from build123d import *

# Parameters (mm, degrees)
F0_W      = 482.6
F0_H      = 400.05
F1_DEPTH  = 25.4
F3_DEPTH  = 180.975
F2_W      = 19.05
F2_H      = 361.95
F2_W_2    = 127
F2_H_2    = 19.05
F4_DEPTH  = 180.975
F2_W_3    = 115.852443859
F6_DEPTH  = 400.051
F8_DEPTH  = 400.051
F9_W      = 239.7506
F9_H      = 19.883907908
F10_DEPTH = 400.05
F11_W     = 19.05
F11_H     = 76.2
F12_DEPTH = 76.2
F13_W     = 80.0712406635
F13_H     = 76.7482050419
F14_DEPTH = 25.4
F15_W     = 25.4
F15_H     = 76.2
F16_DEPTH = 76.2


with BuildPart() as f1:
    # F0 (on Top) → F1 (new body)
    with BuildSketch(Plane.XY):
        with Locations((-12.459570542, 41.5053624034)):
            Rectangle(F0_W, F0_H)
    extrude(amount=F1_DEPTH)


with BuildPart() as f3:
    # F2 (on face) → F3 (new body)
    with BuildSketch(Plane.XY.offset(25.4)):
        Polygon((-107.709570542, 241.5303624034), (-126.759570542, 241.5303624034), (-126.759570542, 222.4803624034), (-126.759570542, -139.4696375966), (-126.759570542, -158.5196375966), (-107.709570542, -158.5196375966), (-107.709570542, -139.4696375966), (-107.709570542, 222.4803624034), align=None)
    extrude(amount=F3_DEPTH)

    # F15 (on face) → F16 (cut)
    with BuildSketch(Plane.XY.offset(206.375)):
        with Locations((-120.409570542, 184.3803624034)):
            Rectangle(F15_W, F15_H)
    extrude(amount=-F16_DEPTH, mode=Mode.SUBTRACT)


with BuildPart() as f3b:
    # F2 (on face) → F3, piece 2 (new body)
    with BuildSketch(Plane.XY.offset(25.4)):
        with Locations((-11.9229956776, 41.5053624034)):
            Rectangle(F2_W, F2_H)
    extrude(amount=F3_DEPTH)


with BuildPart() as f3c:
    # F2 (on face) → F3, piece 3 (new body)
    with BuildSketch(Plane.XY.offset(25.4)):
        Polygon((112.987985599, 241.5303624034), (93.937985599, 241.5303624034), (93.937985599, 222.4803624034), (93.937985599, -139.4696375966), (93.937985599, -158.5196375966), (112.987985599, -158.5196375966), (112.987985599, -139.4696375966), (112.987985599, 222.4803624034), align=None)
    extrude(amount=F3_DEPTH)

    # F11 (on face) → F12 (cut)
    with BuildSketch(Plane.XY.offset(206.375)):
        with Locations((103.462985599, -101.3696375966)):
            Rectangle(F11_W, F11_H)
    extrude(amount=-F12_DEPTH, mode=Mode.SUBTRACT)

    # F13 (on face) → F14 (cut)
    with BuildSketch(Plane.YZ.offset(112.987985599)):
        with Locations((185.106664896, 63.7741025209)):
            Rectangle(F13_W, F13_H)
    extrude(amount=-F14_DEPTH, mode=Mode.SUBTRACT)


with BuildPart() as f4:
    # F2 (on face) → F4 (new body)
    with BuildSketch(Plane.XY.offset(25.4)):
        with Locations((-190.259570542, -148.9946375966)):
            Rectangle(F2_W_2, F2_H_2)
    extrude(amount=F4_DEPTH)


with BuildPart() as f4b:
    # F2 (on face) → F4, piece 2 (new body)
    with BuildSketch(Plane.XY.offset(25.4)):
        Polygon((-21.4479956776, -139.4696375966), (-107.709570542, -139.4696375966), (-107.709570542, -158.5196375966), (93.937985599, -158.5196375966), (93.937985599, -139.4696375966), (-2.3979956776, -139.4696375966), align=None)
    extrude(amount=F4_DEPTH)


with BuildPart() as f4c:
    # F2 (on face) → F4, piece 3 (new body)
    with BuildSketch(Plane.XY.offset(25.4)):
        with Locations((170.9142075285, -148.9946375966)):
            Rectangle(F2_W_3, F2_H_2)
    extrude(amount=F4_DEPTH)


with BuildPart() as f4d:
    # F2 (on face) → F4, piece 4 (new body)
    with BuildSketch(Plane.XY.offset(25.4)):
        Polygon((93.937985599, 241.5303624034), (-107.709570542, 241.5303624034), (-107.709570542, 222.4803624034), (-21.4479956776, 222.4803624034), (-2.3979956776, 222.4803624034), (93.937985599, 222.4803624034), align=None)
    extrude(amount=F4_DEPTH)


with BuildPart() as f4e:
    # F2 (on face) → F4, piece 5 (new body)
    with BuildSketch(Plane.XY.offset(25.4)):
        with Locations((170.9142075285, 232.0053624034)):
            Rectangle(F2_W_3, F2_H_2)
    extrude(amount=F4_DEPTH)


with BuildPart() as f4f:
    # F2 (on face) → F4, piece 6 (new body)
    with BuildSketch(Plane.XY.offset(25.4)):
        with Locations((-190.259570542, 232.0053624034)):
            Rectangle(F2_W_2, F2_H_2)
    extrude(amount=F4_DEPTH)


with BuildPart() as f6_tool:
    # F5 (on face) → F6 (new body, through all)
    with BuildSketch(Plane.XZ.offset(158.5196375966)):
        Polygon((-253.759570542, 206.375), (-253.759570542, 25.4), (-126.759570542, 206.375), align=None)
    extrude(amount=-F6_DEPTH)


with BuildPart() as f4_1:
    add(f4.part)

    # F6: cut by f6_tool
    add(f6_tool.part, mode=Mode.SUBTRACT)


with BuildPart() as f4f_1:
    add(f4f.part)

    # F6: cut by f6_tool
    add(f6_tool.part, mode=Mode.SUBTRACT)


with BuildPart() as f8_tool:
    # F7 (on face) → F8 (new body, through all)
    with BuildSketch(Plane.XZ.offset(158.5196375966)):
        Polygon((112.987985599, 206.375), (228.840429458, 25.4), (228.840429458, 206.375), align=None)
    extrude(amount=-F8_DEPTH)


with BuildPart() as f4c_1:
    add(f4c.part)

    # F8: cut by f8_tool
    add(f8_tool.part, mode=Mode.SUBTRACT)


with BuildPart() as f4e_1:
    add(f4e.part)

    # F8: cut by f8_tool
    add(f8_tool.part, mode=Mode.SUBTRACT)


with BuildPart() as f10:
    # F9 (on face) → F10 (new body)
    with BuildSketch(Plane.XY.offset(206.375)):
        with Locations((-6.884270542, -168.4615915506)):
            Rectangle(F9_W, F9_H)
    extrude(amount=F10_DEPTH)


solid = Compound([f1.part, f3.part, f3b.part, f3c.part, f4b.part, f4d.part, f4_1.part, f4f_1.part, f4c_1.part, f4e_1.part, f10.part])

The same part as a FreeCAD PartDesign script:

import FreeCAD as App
import Part
import Sketcher
from FreeCAD import Vector
Q = App.Units.Quantity

doc = App.newDocument("Part")
body = doc.addObject("PartDesign::Body", "Body")

sketch1 = body.newObject("Sketcher::SketchObject", "Sketch")
sketch1.AttachmentSupport = (doc.getObject("XY_Plane"), [""])
sketch1.MapMode = "FlatFace"
sketch1.addGeometry([
    Part.LineSegment(Vector(-253.759571, 241.530362, 0), Vector(-253.759571, -158.519638, 0)),
    Part.LineSegment(Vector(-253.759571, -158.519638, 0), Vector(228.840429, -158.519638, 0)),
    Part.LineSegment(Vector(228.840429, -158.519638, 0), Vector(228.840429, 241.530362, 0)),
    Part.LineSegment(Vector(228.840429, 241.530362, 0), Vector(-253.759571, 241.530362, 0)),
], False)
sketch1.addConstraint([
    Sketcher.Constraint("Coincident", 0, 2, 1, 1),
    Sketcher.Constraint("Coincident", 1, 2, 2, 1),
    Sketcher.Constraint("Coincident", 2, 2, 3, 1),
    Sketcher.Constraint("Coincident", 3, 2, 0, 1),
    Sketcher.Constraint("Vertical", 0),
    Sketcher.Constraint("Horizontal", 1),
    Sketcher.Constraint("Vertical", 2),
    Sketcher.Constraint("Horizontal", 3),
    Sketcher.Constraint("DistanceX", 1, 1, 1, 2, Q("19 in")),
    Sketcher.Constraint("DistanceY", 0, 2, 0, 1, Q("15.75 in")),
    Sketcher.Constraint("DistanceX", 0, 2, -1, 1, Q("253.759571 mm")),
    Sketcher.Constraint("DistanceY", 0, 2, -1, 1, Q("158.519638 mm")),
])
pad1 = body.newObject("PartDesign::Pad", "Pad")
pad1.Profile = sketch1
pad1.Length = Q("1 in")
body2 = doc.addObject("PartDesign::Body", "Body001")

sketch2 = body2.newObject("Sketcher::SketchObject", "Sketch001")
sketch2.AttachmentSupport = (doc.getObject("XY_Plane001"), [""])
sketch2.MapMode = "FlatFace"
sketch2.AttachmentOffset = App.Placement(Vector(0, 0, 1 * 25.4), App.Rotation())
sketch2.addGeometry([
    Part.LineSegment(Vector(-107.709571, 241.530362, 0), Vector(-126.759571, 241.530362, 0)),
    Part.LineSegment(Vector(-126.759571, 241.530362, 0), Vector(-126.759571, -158.519638, 0)),
    Part.LineSegment(Vector(-126.759571, -158.519638, 0), Vector(-107.709571, -158.519638, 0)),
    Part.LineSegment(Vector(-107.709571, -158.519638, 0), Vector(-107.709571, 241.530362, 0)),
], False)
sketch2.addConstraint([
    Sketcher.Constraint("Coincident", 0, 2, 1, 1),
    Sketcher.Constraint("Coincident", 1, 2, 2, 1),
    Sketcher.Constraint("Coincident", 2, 2, 3, 1),
    Sketcher.Constraint("Coincident", 3, 2, 0, 1),
    Sketcher.Constraint("Horizontal", 0),
    Sketcher.Constraint("Vertical", 1),
    Sketcher.Constraint("Horizontal", 2),
    Sketcher.Constraint("Vertical", 3),
    Sketcher.Constraint("DistanceX", 0, 2, 0, 1, Q("0.75 in")),
    Sketcher.Constraint("DistanceY", 1, 2, 1, 1, Q("15.75 in")),
    Sketcher.Constraint("DistanceX", 0, 2, -1, 1, Q("126.759571 mm")),
    Sketcher.Constraint("DistanceY", -1, 1, 0, 2, Q("241.530362 mm")),
])
pad2 = body2.newObject("PartDesign::Pad", "Pad001")
pad2.Profile = sketch2
pad2.Length = Q("7.125 in")

sketch3 = body2.newObject("Sketcher::SketchObject", "Sketch002")
sketch3.AttachmentSupport = (doc.getObject("XY_Plane001"), [""])
sketch3.MapMode = "FlatFace"
sketch3.AttachmentOffset = App.Placement(Vector(0, 0, 8.125 * 25.4), App.Rotation())
sketch3.addGeometry([
    Part.LineSegment(Vector(-133.109571, 222.480362, 0), Vector(-133.109571, 146.280362, 0)),
    Part.LineSegment(Vector(-133.109571, 146.280362, 0), Vector(-107.709571, 146.280362, 0)),
    Part.LineSegment(Vector(-107.709571, 146.280362, 0), Vector(-107.709571, 222.480362, 0)),
    Part.LineSegment(Vector(-107.709571, 222.480362, 0), Vector(-133.109571, 222.480362, 0)),
], False)
sketch3.addConstraint([
    Sketcher.Constraint("Coincident", 0, 2, 1, 1),
    Sketcher.Constraint("Coincident", 1, 2, 2, 1),
    Sketcher.Constraint("Coincident", 2, 2, 3, 1),
    Sketcher.Constraint("Coincident", 3, 2, 0, 1),
    Sketcher.Constraint("Vertical", 0),
    Sketcher.Constraint("Horizontal", 1),
    Sketcher.Constraint("Vertical", 2),
    Sketcher.Constraint("Horizontal", 3),
    Sketcher.Constraint("DistanceX", 1, 1, 1, 2, Q("1 in")),
    Sketcher.Constraint("DistanceY", 0, 2, 0, 1, Q("3 in")),
    Sketcher.Constraint("DistanceX", 0, 2, -1, 1, Q("133.109571 mm")),
    Sketcher.Constraint("DistanceY", -1, 1, 0, 2, Q("146.280362 mm")),
])
pocket1 = body2.newObject("PartDesign::Pocket", "Pocket")
pocket1.Profile = sketch3
pocket1.Length = Q("3 in")
body3 = doc.addObject("PartDesign::Body", "Body002")

sketch4 = body3.newObject("Sketcher::SketchObject", "Sketch003")
sketch4.AttachmentSupport = (doc.getObject("XY_Plane002"), [""])
sketch4.MapMode = "FlatFace"
sketch4.AttachmentOffset = App.Placement(Vector(0, 0, 1 * 25.4), App.Rotation())
sketch4.addGeometry([
    Part.LineSegment(Vector(-21.447996, 222.480362, 0), Vector(-21.447996, -139.469638, 0)),
    Part.LineSegment(Vector(-21.447996, -139.469638, 0), Vector(-2.397996, -139.469638, 0)),
    Part.LineSegment(Vector(-2.397996, -139.469638, 0), Vector(-2.397996, 222.480362, 0)),
    Part.LineSegment(Vector(-2.397996, 222.480362, 0), Vector(-21.447996, 222.480362, 0)),
], False)
sketch4.addConstraint([
    Sketcher.Constraint("Coincident", 0, 2, 1, 1),
    Sketcher.Constraint("Coincident", 1, 2, 2, 1),
    Sketcher.Constraint("Coincident", 2, 2, 3, 1),
    Sketcher.Constraint("Coincident", 3, 2, 0, 1),
    Sketcher.Constraint("Vertical", 0),
    Sketcher.Constraint("Horizontal", 1),
    Sketcher.Constraint("Vertical", 2),
    Sketcher.Constraint("Horizontal", 3),
    Sketcher.Constraint("DistanceX", 1, 1, 1, 2, Q("0.75 in")),
    Sketcher.Constraint("DistanceY", 0, 2, 0, 1, Q("14.25 in")),
    Sketcher.Constraint("DistanceX", 0, 2, -1, 1, Q("21.447996 mm")),
    Sketcher.Constraint("DistanceY", 0, 2, -1, 1, Q("139.469638 mm")),
])
pad3 = body3.newObject("PartDesign::Pad", "Pad002")
pad3.Profile = sketch4
pad3.Length = Q("7.125 in")
body4 = doc.addObject("PartDesign::Body", "Body003")

sketch5 = body4.newObject("Sketcher::SketchObject", "Sketch004")
sketch5.AttachmentSupport = (doc.getObject("XY_Plane003"), [""])
sketch5.MapMode = "FlatFace"
sketch5.AttachmentOffset = App.Placement(Vector(0, 0, 1 * 25.4), App.Rotation())
sketch5.addGeometry([
    Part.LineSegment(Vector(112.987986, 241.530362, 0), Vector(93.937986, 241.530362, 0)),
    Part.LineSegment(Vector(93.937986, 241.530362, 0), Vector(93.937986, -158.519638, 0)),
    Part.LineSegment(Vector(93.937986, -158.519638, 0), Vector(112.987986, -158.519638, 0)),
    Part.LineSegment(Vector(112.987986, -158.519638, 0), Vector(112.987986, 241.530362, 0)),
], False)
sketch5.addConstraint([
    Sketcher.Constraint("Coincident", 0, 2, 1, 1),
    Sketcher.Constraint("Coincident", 1, 2, 2, 1),
    Sketcher.Constraint("Coincident", 2, 2, 3, 1),
    Sketcher.Constraint("Coincident", 3, 2, 0, 1),
    Sketcher.Constraint("Horizontal", 0),
    Sketcher.Constraint("Vertical", 1),
    Sketcher.Constraint("Horizontal", 2),
    Sketcher.Constraint("Vertical", 3),
    Sketcher.Constraint("DistanceX", 0, 2, 0, 1, Q("0.75 in")),
    Sketcher.Constraint("DistanceY", 1, 2, 1, 1, Q("15.75 in")),
    Sketcher.Constraint("DistanceX", -1, 1, 0, 2, Q("93.937986 mm")),
    Sketcher.Constraint("DistanceY", -1, 1, 0, 2, Q("241.530362 mm")),
])
pad4 = body4.newObject("PartDesign::Pad", "Pad003")
pad4.Profile = sketch5
pad4.Length = Q("7.125 in")

sketch6 = body4.newObject("Sketcher::SketchObject", "Sketch005")
sketch6.AttachmentSupport = (doc.getObject("XY_Plane003"), [""])
sketch6.MapMode = "FlatFace"
sketch6.AttachmentOffset = App.Placement(Vector(0, 0, 8.125 * 25.4), App.Rotation())
sketch6.addGeometry([
    Part.LineSegment(Vector(93.937986, -63.269638, 0), Vector(93.937986, -139.469638, 0)),
    Part.LineSegment(Vector(93.937986, -139.469638, 0), Vector(112.987986, -139.469638, 0)),
    Part.LineSegment(Vector(112.987986, -139.469638, 0), Vector(112.987986, -63.269638, 0)),
    Part.LineSegment(Vector(112.987986, -63.269638, 0), Vector(93.937986, -63.269638, 0)),
], False)
sketch6.addConstraint([
    Sketcher.Constraint("Coincident", 0, 2, 1, 1),
    Sketcher.Constraint("Coincident", 1, 2, 2, 1),
    Sketcher.Constraint("Coincident", 2, 2, 3, 1),
    Sketcher.Constraint("Coincident", 3, 2, 0, 1),
    Sketcher.Constraint("Vertical", 0),
    Sketcher.Constraint("Horizontal", 1),
    Sketcher.Constraint("Vertical", 2),
    Sketcher.Constraint("Horizontal", 3),
    Sketcher.Constraint("DistanceY", 0, 2, 0, 1, Q("3 in")),
    Sketcher.Constraint("DistanceX", 1, 1, 1, 2, Q("0.75 in")),
    Sketcher.Constraint("DistanceX", -1, 1, 0, 2, Q("93.937986 mm")),
    Sketcher.Constraint("DistanceY", 0, 2, -1, 1, Q("139.469638 mm")),
])
pocket2 = body4.newObject("PartDesign::Pocket", "Pocket001")
pocket2.Profile = sketch6
pocket2.Length = Q("3 in")

sketch7 = body4.newObject("Sketcher::SketchObject", "Sketch006")
sketch7.AttachmentSupport = (doc.getObject("YZ_Plane003"), [""])
sketch7.MapMode = "FlatFace"
sketch7.AttachmentOffset = App.Placement(Vector(0, 0, 112.987986), App.Rotation())
sketch7.addGeometry([
    Part.LineSegment(Vector(145.071045, 102.148205, 0), Vector(145.071045, 25.4, 0)),
    Part.LineSegment(Vector(145.071045, 25.4, 0), Vector(225.142285, 25.4, 0)),
    Part.LineSegment(Vector(225.142285, 25.4, 0), Vector(225.142285, 102.148205, 0)),
    Part.LineSegment(Vector(225.142285, 102.148205, 0), Vector(145.071045, 102.148205, 0)),
], False)
sketch7.addConstraint([
    Sketcher.Constraint("Coincident", 0, 2, 1, 1),
    Sketcher.Constraint("Coincident", 1, 2, 2, 1),
    Sketcher.Constraint("Coincident", 2, 2, 3, 1),
    Sketcher.Constraint("Coincident", 3, 2, 0, 1),
    Sketcher.Constraint("Vertical", 0),
    Sketcher.Constraint("Horizontal", 1),
    Sketcher.Constraint("Vertical", 2),
    Sketcher.Constraint("Horizontal", 3),
    Sketcher.Constraint("DistanceY", -1, 1, 0, 2, Q("1 in")),
    Sketcher.Constraint("DistanceX", 1, 1, 1, 2, Q("80.071241 mm")),
    Sketcher.Constraint("DistanceY", 0, 2, 0, 1, Q("76.748205 mm")),
    Sketcher.Constraint("DistanceX", -1, 1, 0, 2, Q("145.071045 mm")),
])
pocket3 = body4.newObject("PartDesign::Pocket", "Pocket002")
pocket3.Profile = sketch7
pocket3.Length = Q("1 in")
body5 = doc.addObject("PartDesign::Body", "Body004")

sketch8 = body5.newObject("Sketcher::SketchObject", "Sketch007")
sketch8.AttachmentSupport = (doc.getObject("XY_Plane004"), [""])
sketch8.MapMode = "FlatFace"
sketch8.AttachmentOffset = App.Placement(Vector(0, 0, 1 * 25.4), App.Rotation())
sketch8.addGeometry([
    Part.LineSegment(Vector(-253.759571, -139.469638, 0), Vector(-253.759571, -158.519638, 0)),
    Part.LineSegment(Vector(-253.759571, -158.519638, 0), Vector(-126.759571, -158.519638, 0)),
    Part.LineSegment(Vector(-126.759571, -158.519638, 0), Vector(-126.759571, -139.469638, 0)),
    Part.LineSegment(Vector(-126.759571, -139.469638, 0), Vector(-253.759571, -139.469638, 0)),
], False)
sketch8.addConstraint([
    Sketcher.Constraint("Coincident", 0, 2, 1, 1),
    Sketcher.Constraint("Coincident", 1, 2, 2, 1),
    Sketcher.Constraint("Coincident", 2, 2, 3, 1),
    Sketcher.Constraint("Coincident", 3, 2, 0, 1),
    Sketcher.Constraint("Vertical", 0),
    Sketcher.Constraint("Horizontal", 1),
    Sketcher.Constraint("Vertical", 2),
    Sketcher.Constraint("Horizontal", 3),
    Sketcher.Constraint("DistanceX", 1, 1, 1, 2, Q("5 in")),
    Sketcher.Constraint("DistanceY", 0, 2, 0, 1, Q("0.75 in")),
    Sketcher.Constraint("DistanceX", 0, 2, -1, 1, Q("253.759571 mm")),
    Sketcher.Constraint("DistanceY", 0, 2, -1, 1, Q("158.519638 mm")),
])
pad5 = body5.newObject("PartDesign::Pad", "Pad004")
pad5.Profile = sketch8
pad5.Length = Q("7.125 in")
body6 = doc.addObject("PartDesign::Body", "Body005")

sketch9 = body6.newObject("Sketcher::SketchObject", "Sketch008")
sketch9.AttachmentSupport = (doc.getObject("XY_Plane005"), [""])
sketch9.MapMode = "FlatFace"
sketch9.AttachmentOffset = App.Placement(Vector(0, 0, 1 * 25.4), App.Rotation())
sketch9.addGeometry([
    Part.LineSegment(Vector(-107.709571, -139.469638, 0), Vector(-107.709571, -158.519638, 0)),
    Part.LineSegment(Vector(-107.709571, -158.519638, 0), Vector(93.937986, -158.519638, 0)),
    Part.LineSegment(Vector(93.937986, -158.519638, 0), Vector(93.937986, -139.469638, 0)),
    Part.LineSegment(Vector(93.937986, -139.469638, 0), Vector(-107.709571, -139.469638, 0)),
], False)
sketch9.addConstraint([
    Sketcher.Constraint("Coincident", 0, 2, 1, 1),
    Sketcher.Constraint("Coincident", 1, 2, 2, 1),
    Sketcher.Constraint("Coincident", 2, 2, 3, 1),
    Sketcher.Constraint("Coincident", 3, 2, 0, 1),
    Sketcher.Constraint("Vertical", 0),
    Sketcher.Constraint("Horizontal", 1),
    Sketcher.Constraint("Vertical", 2),
    Sketcher.Constraint("Horizontal", 3),
    Sketcher.Constraint("DistanceY", 0, 2, 0, 1, Q("0.75 in")),
    Sketcher.Constraint("DistanceX", 1, 1, 1, 2, Q("201.647556 mm")),
    Sketcher.Constraint("DistanceX", 0, 2, -1, 1, Q("107.709571 mm")),
    Sketcher.Constraint("DistanceY", 0, 2, -1, 1, Q("158.519638 mm")),
])
pad6 = body6.newObject("PartDesign::Pad", "Pad005")
pad6.Profile = sketch9
pad6.Length = Q("7.125 in")
body7 = doc.addObject("PartDesign::Body", "Body006")

sketch10 = body7.newObject("Sketcher::SketchObject", "Sketch009")
sketch10.AttachmentSupport = (doc.getObject("XY_Plane006"), [""])
sketch10.MapMode = "FlatFace"
sketch10.AttachmentOffset = App.Placement(Vector(0, 0, 1 * 25.4), App.Rotation())
sketch10.addGeometry([
    Part.LineSegment(Vector(112.987986, -139.469638, 0), Vector(112.987986, -158.519638, 0)),
    Part.LineSegment(Vector(112.987986, -158.519638, 0), Vector(228.840429, -158.519638, 0)),
    Part.LineSegment(Vector(228.840429, -158.519638, 0), Vector(228.840429, -139.469638, 0)),
    Part.LineSegment(Vector(228.840429, -139.469638, 0), Vector(112.987986, -139.469638, 0)),
], False)
sketch10.addConstraint([
    Sketcher.Constraint("Coincident", 0, 2, 1, 1),
    Sketcher.Constraint("Coincident", 1, 2, 2, 1),
    Sketcher.Constraint("Coincident", 2, 2, 3, 1),
    Sketcher.Constraint("Coincident", 3, 2, 0, 1),
    Sketcher.Constraint("Vertical", 0),
    Sketcher.Constraint("Horizontal", 1),
    Sketcher.Constraint("Vertical", 2),
    Sketcher.Constraint("Horizontal", 3),
    Sketcher.Constraint("DistanceY", 0, 2, 0, 1, Q("0.75 in")),
    Sketcher.Constraint("DistanceX", 1, 1, 1, 2, Q("115.852444 mm")),
    Sketcher.Constraint("DistanceX", -1, 1, 1, 2, Q("228.840429 mm")),
    Sketcher.Constraint("DistanceY", 0, 2, -1, 1, Q("158.519638 mm")),
])
pad7 = body7.newObject("PartDesign::Pad", "Pad006")
pad7.Profile = sketch10
pad7.Length = Q("7.125 in")
body8 = doc.addObject("PartDesign::Body", "Body007")

sketch11 = body8.newObject("Sketcher::SketchObject", "Sketch010")
sketch11.AttachmentSupport = (doc.getObject("XY_Plane007"), [""])
sketch11.MapMode = "FlatFace"
sketch11.AttachmentOffset = App.Placement(Vector(0, 0, 1 * 25.4), App.Rotation())
sketch11.addGeometry([
    Part.LineSegment(Vector(93.937986, 241.530362, 0), Vector(-107.709571, 241.530362, 0)),
    Part.LineSegment(Vector(-107.709571, 241.530362, 0), Vector(-107.709571, 222.480362, 0)),
    Part.LineSegment(Vector(-107.709571, 222.480362, 0), Vector(93.937986, 222.480362, 0)),
    Part.LineSegment(Vector(93.937986, 222.480362, 0), Vector(93.937986, 241.530362, 0)),
], False)
sketch11.addConstraint([
    Sketcher.Constraint("Coincident", 0, 2, 1, 1),
    Sketcher.Constraint("Coincident", 1, 2, 2, 1),
    Sketcher.Constraint("Coincident", 2, 2, 3, 1),
    Sketcher.Constraint("Coincident", 3, 2, 0, 1),
    Sketcher.Constraint("Horizontal", 0),
    Sketcher.Constraint("Vertical", 1),
    Sketcher.Constraint("Horizontal", 2),
    Sketcher.Constraint("Vertical", 3),
    Sketcher.Constraint("DistanceY", 1, 2, 1, 1, Q("0.75 in")),
    Sketcher.Constraint("DistanceX", 0, 2, 0, 1, Q("201.647556 mm")),
    Sketcher.Constraint("DistanceX", 0, 2, -1, 1, Q("107.709571 mm")),
    Sketcher.Constraint("DistanceY", -1, 1, 0, 2, Q("241.530362 mm")),
])
pad8 = body8.newObject("PartDesign::Pad", "Pad007")
pad8.Profile = sketch11
pad8.Length = Q("7.125 in")
body9 = doc.addObject("PartDesign::Body", "Body008")

sketch12 = body9.newObject("Sketcher::SketchObject", "Sketch011")
sketch12.AttachmentSupport = (doc.getObject("XY_Plane008"), [""])
sketch12.MapMode = "FlatFace"
sketch12.AttachmentOffset = App.Placement(Vector(0, 0, 1 * 25.4), App.Rotation())
sketch12.addGeometry([
    Part.LineSegment(Vector(112.987986, 241.530362, 0), Vector(112.987986, 222.480362, 0)),
    Part.LineSegment(Vector(112.987986, 222.480362, 0), Vector(228.840429, 222.480362, 0)),
    Part.LineSegment(Vector(228.840429, 222.480362, 0), Vector(228.840429, 241.530362, 0)),
    Part.LineSegment(Vector(228.840429, 241.530362, 0), Vector(112.987986, 241.530362, 0)),
], False)
sketch12.addConstraint([
    Sketcher.Constraint("Coincident", 0, 2, 1, 1),
    Sketcher.Constraint("Coincident", 1, 2, 2, 1),
    Sketcher.Constraint("Coincident", 2, 2, 3, 1),
    Sketcher.Constraint("Coincident", 3, 2, 0, 1),
    Sketcher.Constraint("Vertical", 0),
    Sketcher.Constraint("Horizontal", 1),
    Sketcher.Constraint("Vertical", 2),
    Sketcher.Constraint("Horizontal", 3),
    Sketcher.Constraint("DistanceY", 0, 2, 0, 1, Q("0.75 in")),
    Sketcher.Constraint("DistanceX", 1, 1, 1, 2, Q("115.852444 mm")),
    Sketcher.Constraint("DistanceX", -1, 1, 1, 2, Q("228.840429 mm")),
    Sketcher.Constraint("DistanceY", -1, 1, 0, 2, Q("222.480362 mm")),
])
pad9 = body9.newObject("PartDesign::Pad", "Pad008")
pad9.Profile = sketch12
pad9.Length = Q("7.125 in")
body10 = doc.addObject("PartDesign::Body", "Body009")

sketch13 = body10.newObject("Sketcher::SketchObject", "Sketch012")
sketch13.AttachmentSupport = (doc.getObject("XY_Plane009"), [""])
sketch13.MapMode = "FlatFace"
sketch13.AttachmentOffset = App.Placement(Vector(0, 0, 1 * 25.4), App.Rotation())
sketch13.addGeometry([
    Part.LineSegment(Vector(-253.759571, 241.530362, 0), Vector(-253.759571, 222.480362, 0)),
    Part.LineSegment(Vector(-253.759571, 222.480362, 0), Vector(-126.759571, 222.480362, 0)),
    Part.LineSegment(Vector(-126.759571, 222.480362, 0), Vector(-126.759571, 241.530362, 0)),
    Part.LineSegment(Vector(-126.759571, 241.530362, 0), Vector(-253.759571, 241.530362, 0)),
], False)
sketch13.addConstraint([
    Sketcher.Constraint("Coincident", 0, 2, 1, 1),
    Sketcher.Constraint("Coincident", 1, 2, 2, 1),
    Sketcher.Constraint("Coincident", 2, 2, 3, 1),
    Sketcher.Constraint("Coincident", 3, 2, 0, 1),
    Sketcher.Constraint("Vertical", 0),
    Sketcher.Constraint("Horizontal", 1),
    Sketcher.Constraint("Vertical", 2),
    Sketcher.Constraint("Horizontal", 3),
    Sketcher.Constraint("DistanceX", 1, 1, 1, 2, Q("5 in")),
    Sketcher.Constraint("DistanceY", 0, 2, 0, 1, Q("0.75 in")),
    Sketcher.Constraint("DistanceX", 0, 2, -1, 1, Q("253.759571 mm")),
    Sketcher.Constraint("DistanceY", -1, 1, 0, 2, Q("222.480362 mm")),
])
pad10 = body10.newObject("PartDesign::Pad", "Pad009")
pad10.Profile = sketch13
pad10.Length = Q("7.125 in")
body11 = doc.addObject("PartDesign::Body", "Body010")

sketch14 = body11.newObject("Sketcher::SketchObject", "Sketch013")
sketch14.AttachmentSupport = (doc.getObject("XZ_Plane010"), [""])
sketch14.MapMode = "FlatFace"
sketch14.AttachmentOffset = App.Placement(Vector(0, 0, 158.519638), App.Rotation())
sketch14.addGeometry([
    Part.LineSegment(Vector(-253.759571, 206.375, 0), Vector(-253.759571, 25.4, 0)),
    Part.LineSegment(Vector(-253.759571, 25.4, 0), Vector(-126.759571, 206.375, 0)),
    Part.LineSegment(Vector(-126.759571, 206.375, 0), Vector(-253.759571, 206.375, 0)),
], False)
sketch14.addConstraint([
    Sketcher.Constraint("Coincident", 0, 2, 1, 1),
    Sketcher.Constraint("Coincident", 1, 2, 2, 1),
    Sketcher.Constraint("Coincident", 2, 2, 0, 1),
    Sketcher.Constraint("Vertical", 0),
    Sketcher.Constraint("Horizontal", 2),
    Sketcher.Constraint("DistanceX", 2, 2, 2, 1, Q("5 in")),
    Sketcher.Constraint("DistanceY", -1, 1, 0, 2, Q("1 in")),
    Sketcher.Constraint("DistanceY", 0, 2, 0, 1, Q("7.125 in")),
    Sketcher.Constraint("DistanceX", 0, 2, -1, 1, Q("253.759571 mm")),
])
pad11 = body11.newObject("PartDesign::Pad", "Pad010")
pad11.Profile = sketch14
pad11.Length = 400.051
pad11.Reversed = True
doc.recompute()

body12 = doc.addObject("PartDesign::Body", "Body011")
body12.BaseFeature = body11
boolean = body5.newObject("PartDesign::Boolean", "Boolean")
boolean.Type = "Cut"
boolean.addObjects([body12])
doc.recompute()

boolean2 = body10.newObject("PartDesign::Boolean", "Boolean001")
boolean2.Type = "Cut"
boolean2.addObjects([body11])
body13 = doc.addObject("PartDesign::Body", "Body012")

sketch15 = body13.newObject("Sketcher::SketchObject", "Sketch014")
sketch15.AttachmentSupport = (doc.getObject("XZ_Plane012"), [""])
sketch15.MapMode = "FlatFace"
sketch15.AttachmentOffset = App.Placement(Vector(0, 0, 158.519638), App.Rotation())
sketch15.addGeometry([
    Part.LineSegment(Vector(112.987986, 206.375, 0), Vector(228.840429, 25.4, 0)),
    Part.LineSegment(Vector(228.840429, 25.4, 0), Vector(228.840429, 206.375, 0)),
    Part.LineSegment(Vector(228.840429, 206.375, 0), Vector(112.987986, 206.375, 0)),
], False)
sketch15.addConstraint([
    Sketcher.Constraint("Coincident", 0, 2, 1, 1),
    Sketcher.Constraint("Coincident", 1, 2, 2, 1),
    Sketcher.Constraint("Coincident", 2, 2, 0, 1),
    Sketcher.Constraint("Vertical", 1),
    Sketcher.Constraint("Horizontal", 2),
    Sketcher.Constraint("DistanceY", -1, 1, 0, 2, Q("1 in")),
    Sketcher.Constraint("DistanceY", 1, 1, 1, 2, Q("7.125 in")),
    Sketcher.Constraint("DistanceX", 2, 2, 2, 1, Q("115.852444 mm")),
    Sketcher.Constraint("DistanceX", -1, 1, 0, 2, Q("228.840429 mm")),
])
pad12 = body13.newObject("PartDesign::Pad", "Pad011")
pad12.Profile = sketch15
pad12.Length = 400.051
pad12.Reversed = True
doc.recompute()

body14 = doc.addObject("PartDesign::Body", "Body013")
body14.BaseFeature = body13
boolean3 = body7.newObject("PartDesign::Boolean", "Boolean002")
boolean3.Type = "Cut"
boolean3.addObjects([body14])
doc.recompute()

boolean4 = body9.newObject("PartDesign::Boolean", "Boolean003")
boolean4.Type = "Cut"
boolean4.addObjects([body13])
body15 = doc.addObject("PartDesign::Body", "Body014")

sketch16 = body15.newObject("Sketcher::SketchObject", "Sketch015")
sketch16.AttachmentSupport = (doc.getObject("XY_Plane014"), [""])
sketch16.MapMode = "FlatFace"
sketch16.AttachmentOffset = App.Placement(Vector(0, 0, 8.125 * 25.4), App.Rotation())
sketch16.addGeometry([
    Part.LineSegment(Vector(-126.759571, -158.519638, 0), Vector(-126.759571, -178.403546, 0)),
    Part.LineSegment(Vector(-126.759571, -178.403546, 0), Vector(112.991029, -178.403546, 0)),
    Part.LineSegment(Vector(112.991029, -178.403546, 0), Vector(112.991029, -158.519638, 0)),
    Part.LineSegment(Vector(112.991029, -158.519638, 0), Vector(-126.759571, -158.519638, 0)),
], False)
sketch16.addConstraint([
    Sketcher.Constraint("Coincident", 0, 2, 1, 1),
    Sketcher.Constraint("Coincident", 1, 2, 2, 1),
    Sketcher.Constraint("Coincident", 2, 2, 3, 1),
    Sketcher.Constraint("Coincident", 3, 2, 0, 1),
    Sketcher.Constraint("Vertical", 0),
    Sketcher.Constraint("Horizontal", 1),
    Sketcher.Constraint("Vertical", 2),
    Sketcher.Constraint("Horizontal", 3),
    Sketcher.Constraint("DistanceX", 1, 1, 1, 2, Q("9.439 in")),
    Sketcher.Constraint("DistanceY", 0, 2, 0, 1, Q("19.883908 mm")),
    Sketcher.Constraint("DistanceX", 0, 2, -1, 1, Q("126.759571 mm")),
    Sketcher.Constraint("DistanceY", 0, 2, -1, 1, Q("178.403546 mm")),
])
pad13 = body15.newObject("PartDesign::Pad", "Pad012")
pad13.Profile = sketch16
pad13.Length = Q("15.75 in")

doc.recompute()
